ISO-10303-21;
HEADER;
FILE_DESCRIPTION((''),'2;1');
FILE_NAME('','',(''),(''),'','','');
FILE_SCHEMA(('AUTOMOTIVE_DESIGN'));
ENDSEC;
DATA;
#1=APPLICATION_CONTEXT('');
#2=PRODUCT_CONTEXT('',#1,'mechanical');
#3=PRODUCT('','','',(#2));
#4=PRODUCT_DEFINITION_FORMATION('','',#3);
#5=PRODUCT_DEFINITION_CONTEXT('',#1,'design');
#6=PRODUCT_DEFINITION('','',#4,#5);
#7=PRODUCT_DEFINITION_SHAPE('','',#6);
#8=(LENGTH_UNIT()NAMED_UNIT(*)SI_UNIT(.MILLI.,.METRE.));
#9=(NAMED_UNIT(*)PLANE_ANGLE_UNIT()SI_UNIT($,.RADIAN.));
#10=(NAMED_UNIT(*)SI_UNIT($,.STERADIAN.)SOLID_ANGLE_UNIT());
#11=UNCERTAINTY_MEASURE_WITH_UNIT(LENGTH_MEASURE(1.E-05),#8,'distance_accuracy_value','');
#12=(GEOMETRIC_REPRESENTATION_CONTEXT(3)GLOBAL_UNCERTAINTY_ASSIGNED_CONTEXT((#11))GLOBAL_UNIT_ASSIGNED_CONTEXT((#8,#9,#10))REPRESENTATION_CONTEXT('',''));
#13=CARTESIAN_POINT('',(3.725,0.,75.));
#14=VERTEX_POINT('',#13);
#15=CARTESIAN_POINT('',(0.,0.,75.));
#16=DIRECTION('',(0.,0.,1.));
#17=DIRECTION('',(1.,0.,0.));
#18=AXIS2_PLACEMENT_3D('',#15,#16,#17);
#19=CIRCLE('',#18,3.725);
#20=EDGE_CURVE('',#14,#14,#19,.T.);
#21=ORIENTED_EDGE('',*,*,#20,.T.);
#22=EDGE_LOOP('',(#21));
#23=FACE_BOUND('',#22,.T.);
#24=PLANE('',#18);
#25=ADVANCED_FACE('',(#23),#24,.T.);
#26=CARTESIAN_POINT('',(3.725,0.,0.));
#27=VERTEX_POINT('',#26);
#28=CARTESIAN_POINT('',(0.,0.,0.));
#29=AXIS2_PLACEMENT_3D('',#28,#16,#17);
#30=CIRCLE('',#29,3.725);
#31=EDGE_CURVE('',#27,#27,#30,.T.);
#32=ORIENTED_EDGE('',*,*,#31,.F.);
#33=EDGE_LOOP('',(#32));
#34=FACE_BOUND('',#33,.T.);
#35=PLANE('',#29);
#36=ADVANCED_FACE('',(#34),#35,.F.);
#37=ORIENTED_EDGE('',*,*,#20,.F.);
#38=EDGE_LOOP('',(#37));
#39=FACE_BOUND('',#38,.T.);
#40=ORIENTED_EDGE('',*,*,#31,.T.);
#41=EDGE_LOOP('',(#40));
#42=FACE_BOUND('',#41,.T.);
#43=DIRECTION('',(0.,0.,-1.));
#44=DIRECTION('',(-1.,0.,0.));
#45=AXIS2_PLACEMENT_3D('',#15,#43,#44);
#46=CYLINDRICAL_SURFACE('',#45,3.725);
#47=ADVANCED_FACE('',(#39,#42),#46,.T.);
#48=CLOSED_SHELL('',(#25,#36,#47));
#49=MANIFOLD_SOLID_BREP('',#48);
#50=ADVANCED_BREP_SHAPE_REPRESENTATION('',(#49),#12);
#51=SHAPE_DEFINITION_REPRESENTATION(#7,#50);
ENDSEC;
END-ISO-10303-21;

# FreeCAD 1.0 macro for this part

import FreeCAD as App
import Part
import Sketcher

V = App.Vector

doc = App.newDocument("Part")
body = doc.addObject("PartDesign::Body", "Body")

sketch1 = doc.addObject("Sketcher::SketchObject", "Sketch")
body.addObject(sketch1)
sketch1.AttachmentSupport = (doc.XY_Plane, [""])
sketch1.MapMode = "FlatFace"
sketch1.addGeometry(Part.Circle(V(0, 0, 0), V(0, 0, 1), 3.7), False)
sketch1.addConstraint([
    Sketcher.Constraint("Coincident", 0, 3, -1, 1),
    Sketcher.Constraint("Diameter", 0, 7.45),
])
pad1 = doc.addObject("PartDesign::Pad", "Pad")
body.addObject(pad1)
pad1.Profile = sketch1
pad1.Length = 75

doc.recompute()
